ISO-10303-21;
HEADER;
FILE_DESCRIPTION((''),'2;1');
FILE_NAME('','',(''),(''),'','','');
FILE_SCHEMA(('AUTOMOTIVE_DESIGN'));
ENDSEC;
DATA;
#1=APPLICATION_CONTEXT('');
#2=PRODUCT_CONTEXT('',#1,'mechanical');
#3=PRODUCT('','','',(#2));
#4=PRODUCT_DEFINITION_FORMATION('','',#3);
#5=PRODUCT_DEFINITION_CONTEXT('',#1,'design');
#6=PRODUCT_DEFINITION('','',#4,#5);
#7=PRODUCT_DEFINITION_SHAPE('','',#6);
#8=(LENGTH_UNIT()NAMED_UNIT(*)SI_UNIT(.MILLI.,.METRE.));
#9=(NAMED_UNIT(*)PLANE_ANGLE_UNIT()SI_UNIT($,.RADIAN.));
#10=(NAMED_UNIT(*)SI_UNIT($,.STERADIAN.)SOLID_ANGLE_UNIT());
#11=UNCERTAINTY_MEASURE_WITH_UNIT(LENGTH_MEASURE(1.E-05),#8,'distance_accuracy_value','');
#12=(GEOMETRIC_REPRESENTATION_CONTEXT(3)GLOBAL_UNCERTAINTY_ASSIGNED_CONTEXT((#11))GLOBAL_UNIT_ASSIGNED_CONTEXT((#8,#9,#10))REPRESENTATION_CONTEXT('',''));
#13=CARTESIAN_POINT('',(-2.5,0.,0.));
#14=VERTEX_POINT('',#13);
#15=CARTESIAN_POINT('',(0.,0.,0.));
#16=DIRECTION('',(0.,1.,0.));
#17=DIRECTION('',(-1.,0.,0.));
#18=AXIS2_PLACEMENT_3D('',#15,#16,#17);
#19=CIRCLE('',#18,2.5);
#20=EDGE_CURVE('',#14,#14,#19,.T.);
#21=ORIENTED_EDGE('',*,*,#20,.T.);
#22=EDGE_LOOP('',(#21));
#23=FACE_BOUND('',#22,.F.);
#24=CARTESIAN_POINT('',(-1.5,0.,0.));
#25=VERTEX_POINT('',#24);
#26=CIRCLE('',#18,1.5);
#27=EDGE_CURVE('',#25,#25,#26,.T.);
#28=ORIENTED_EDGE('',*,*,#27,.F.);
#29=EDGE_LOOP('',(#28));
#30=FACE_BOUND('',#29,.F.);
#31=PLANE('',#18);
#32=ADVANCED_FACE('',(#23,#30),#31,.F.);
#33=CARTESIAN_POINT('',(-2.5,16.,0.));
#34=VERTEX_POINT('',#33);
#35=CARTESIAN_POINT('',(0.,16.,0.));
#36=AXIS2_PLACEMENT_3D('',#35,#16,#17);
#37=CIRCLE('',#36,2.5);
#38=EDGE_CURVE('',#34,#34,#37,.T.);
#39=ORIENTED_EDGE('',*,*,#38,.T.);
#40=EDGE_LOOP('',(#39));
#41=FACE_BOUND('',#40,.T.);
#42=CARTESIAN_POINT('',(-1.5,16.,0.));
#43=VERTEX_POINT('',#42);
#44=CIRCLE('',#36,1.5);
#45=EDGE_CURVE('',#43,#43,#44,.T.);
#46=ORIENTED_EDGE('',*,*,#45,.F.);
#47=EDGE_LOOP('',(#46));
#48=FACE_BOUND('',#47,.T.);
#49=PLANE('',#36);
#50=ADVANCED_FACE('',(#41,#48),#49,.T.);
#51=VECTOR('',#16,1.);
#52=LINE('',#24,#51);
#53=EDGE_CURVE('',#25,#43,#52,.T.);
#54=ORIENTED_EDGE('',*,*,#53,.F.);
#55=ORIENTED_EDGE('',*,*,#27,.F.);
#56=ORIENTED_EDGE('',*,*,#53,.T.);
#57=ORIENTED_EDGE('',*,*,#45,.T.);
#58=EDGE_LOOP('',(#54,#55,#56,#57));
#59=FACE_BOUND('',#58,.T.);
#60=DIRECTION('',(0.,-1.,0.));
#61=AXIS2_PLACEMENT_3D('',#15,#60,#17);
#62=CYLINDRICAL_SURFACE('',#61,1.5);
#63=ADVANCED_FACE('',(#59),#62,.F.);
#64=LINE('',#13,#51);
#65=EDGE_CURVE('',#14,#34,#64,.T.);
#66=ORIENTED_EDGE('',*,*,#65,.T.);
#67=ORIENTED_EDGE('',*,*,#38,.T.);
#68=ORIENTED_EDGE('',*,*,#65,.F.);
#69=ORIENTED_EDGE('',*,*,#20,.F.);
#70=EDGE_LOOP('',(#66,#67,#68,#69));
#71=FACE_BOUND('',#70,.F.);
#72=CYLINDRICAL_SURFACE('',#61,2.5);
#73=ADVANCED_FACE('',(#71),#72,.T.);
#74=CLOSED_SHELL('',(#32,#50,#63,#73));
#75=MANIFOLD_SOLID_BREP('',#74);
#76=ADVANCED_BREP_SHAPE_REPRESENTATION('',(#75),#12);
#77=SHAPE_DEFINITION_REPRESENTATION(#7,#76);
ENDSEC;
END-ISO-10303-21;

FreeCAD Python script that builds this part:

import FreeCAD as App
import Part
import Sketcher
Q = App.Units.Quantity

doc = App.newDocument("Part")
body = doc.addObject("PartDesign::Body", "Body")

# Sketch on XZ plane
sketch1 = body.newObject("Sketcher::SketchObject", "Sketch")
sketch1.AttachmentSupport = (doc.getObject("XZ_Plane"), [""])
sketch1.MapMode = "FlatFace"
sketch1.addGeometry([
    Part.Circle(App.Vector(0, 0, 0), App.Vector(0, 0, 1), 2.5),
    Part.Circle(App.Vector(0, 0, 0), App.Vector(0, 0, 1), 1.5),
], False)
sketch1.addConstraint([
    Sketcher.Constraint("Coincident", 0, 3, -1, 1),
    Sketcher.Constraint("Coincident", 1, 3, -1, 1),
    Sketcher.Constraint("Diameter", 0, Q("5 mm")),
    Sketcher.Constraint("Diameter", 1, Q("3 mm")),
])
pad1 = body.newObject("PartDesign::Pad", "Pad")
pad1.Profile = sketch1
pad1.Length = 16
pad1.Reversed = True

doc.recompute()
